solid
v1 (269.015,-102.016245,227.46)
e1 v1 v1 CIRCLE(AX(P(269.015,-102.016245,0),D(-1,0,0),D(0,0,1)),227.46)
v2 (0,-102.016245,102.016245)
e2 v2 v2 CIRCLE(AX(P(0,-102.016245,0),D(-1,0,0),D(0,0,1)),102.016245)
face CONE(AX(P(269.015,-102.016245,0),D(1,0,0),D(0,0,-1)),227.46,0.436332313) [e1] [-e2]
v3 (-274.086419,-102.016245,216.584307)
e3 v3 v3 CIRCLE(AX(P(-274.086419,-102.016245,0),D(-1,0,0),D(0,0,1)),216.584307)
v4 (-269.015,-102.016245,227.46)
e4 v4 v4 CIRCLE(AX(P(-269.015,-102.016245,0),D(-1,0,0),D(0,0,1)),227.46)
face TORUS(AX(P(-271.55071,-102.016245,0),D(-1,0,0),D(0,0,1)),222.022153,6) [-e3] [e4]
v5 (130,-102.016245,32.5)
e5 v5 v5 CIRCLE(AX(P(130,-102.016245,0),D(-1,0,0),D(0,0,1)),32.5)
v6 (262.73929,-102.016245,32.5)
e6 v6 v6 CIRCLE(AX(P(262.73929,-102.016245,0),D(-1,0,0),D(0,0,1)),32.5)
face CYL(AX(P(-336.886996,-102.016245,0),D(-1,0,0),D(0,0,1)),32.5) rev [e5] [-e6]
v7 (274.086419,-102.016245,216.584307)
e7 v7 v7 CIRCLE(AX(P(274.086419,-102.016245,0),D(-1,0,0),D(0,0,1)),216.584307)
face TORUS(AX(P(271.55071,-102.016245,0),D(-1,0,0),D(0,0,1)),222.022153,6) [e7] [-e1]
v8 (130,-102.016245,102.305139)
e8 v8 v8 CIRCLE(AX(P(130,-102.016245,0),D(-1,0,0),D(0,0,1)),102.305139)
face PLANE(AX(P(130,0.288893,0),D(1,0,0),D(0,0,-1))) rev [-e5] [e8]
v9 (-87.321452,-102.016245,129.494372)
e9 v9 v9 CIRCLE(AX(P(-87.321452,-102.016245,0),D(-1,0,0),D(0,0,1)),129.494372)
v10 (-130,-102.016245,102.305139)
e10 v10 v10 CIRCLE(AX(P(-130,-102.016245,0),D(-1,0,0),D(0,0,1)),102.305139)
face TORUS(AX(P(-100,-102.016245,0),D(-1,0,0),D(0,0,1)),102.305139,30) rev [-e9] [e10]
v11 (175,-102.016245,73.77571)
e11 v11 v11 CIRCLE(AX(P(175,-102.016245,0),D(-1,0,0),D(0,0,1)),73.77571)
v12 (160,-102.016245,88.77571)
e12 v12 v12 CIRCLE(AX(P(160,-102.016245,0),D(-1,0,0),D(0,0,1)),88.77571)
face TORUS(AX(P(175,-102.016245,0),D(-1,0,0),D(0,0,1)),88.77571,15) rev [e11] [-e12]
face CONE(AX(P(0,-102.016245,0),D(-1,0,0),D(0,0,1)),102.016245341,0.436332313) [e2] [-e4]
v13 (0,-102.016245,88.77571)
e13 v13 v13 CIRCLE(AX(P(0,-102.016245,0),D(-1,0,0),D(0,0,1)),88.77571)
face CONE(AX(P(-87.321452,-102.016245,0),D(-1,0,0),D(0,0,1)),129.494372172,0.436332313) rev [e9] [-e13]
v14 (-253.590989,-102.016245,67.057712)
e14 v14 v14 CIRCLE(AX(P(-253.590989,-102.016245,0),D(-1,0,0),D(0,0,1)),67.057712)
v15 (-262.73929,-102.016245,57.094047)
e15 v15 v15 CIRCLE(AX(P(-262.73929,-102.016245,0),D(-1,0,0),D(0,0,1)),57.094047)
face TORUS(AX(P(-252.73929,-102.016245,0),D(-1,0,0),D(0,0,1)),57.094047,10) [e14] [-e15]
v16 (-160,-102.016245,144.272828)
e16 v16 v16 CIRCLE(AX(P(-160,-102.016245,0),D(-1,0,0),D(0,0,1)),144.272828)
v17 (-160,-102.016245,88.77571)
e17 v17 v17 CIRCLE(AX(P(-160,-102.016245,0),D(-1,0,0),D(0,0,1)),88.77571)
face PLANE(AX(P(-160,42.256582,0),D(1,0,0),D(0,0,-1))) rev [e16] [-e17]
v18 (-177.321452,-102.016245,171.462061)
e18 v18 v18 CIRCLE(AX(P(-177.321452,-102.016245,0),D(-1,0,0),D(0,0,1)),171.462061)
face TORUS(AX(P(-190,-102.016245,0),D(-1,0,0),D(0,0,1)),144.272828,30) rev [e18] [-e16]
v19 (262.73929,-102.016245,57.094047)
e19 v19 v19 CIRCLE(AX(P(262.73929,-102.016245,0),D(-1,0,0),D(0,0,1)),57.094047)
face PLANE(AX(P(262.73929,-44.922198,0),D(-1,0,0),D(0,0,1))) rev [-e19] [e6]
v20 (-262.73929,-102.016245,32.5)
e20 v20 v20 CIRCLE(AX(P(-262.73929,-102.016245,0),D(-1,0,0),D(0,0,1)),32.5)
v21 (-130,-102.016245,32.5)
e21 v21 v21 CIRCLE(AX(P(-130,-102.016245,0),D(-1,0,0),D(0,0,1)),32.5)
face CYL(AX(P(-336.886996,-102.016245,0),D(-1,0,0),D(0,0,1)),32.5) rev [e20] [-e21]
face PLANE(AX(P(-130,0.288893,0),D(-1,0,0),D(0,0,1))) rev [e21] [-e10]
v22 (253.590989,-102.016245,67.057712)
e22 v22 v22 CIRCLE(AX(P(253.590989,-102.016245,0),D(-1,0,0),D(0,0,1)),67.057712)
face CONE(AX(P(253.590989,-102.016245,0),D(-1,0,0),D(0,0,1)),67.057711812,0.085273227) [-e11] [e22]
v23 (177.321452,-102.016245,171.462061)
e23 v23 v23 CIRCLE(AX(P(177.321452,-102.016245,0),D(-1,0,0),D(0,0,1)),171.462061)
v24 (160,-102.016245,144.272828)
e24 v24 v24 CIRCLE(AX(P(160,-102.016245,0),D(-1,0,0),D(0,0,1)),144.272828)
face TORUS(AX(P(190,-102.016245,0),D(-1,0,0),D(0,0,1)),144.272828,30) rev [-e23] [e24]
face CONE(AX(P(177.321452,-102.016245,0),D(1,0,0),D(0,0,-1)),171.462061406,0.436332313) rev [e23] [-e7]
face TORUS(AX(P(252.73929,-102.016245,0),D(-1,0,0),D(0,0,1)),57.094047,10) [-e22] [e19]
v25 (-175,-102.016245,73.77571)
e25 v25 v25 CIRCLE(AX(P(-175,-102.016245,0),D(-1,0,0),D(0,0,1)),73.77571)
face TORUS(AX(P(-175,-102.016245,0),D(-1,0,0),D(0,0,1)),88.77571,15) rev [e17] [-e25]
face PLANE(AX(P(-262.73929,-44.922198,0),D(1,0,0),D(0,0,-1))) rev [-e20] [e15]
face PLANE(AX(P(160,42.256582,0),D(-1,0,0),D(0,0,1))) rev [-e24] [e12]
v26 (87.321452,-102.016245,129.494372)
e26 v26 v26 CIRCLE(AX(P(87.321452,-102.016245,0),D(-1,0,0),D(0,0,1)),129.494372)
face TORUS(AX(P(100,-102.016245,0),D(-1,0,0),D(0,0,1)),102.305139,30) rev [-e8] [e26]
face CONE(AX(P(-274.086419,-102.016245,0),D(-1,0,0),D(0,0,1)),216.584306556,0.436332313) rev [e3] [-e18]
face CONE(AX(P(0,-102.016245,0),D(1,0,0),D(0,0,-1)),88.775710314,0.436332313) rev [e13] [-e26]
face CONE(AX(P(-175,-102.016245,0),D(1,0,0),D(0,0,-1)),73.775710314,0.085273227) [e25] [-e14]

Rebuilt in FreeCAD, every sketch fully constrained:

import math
import FreeCAD as App
import Part
import Sketcher
Q = App.Units.Quantity

doc = App.newDocument("Part")
body = doc.addObject("PartDesign::Body", "Body")

sketch1 = body.newObject("Sketcher::SketchObject", "Sketch")
sketch1.AttachmentSupport = (doc.getObject("XY_Plane"), [""])
sketch1.MapMode = "FlatFace"
sketch1.addGeometry(Part.LineSegment(App.Vector(269, 125, 0), App.Vector(0, 0, 0)), False)
sketch1.addGeometry(Part.LineSegment(App.Vector(0, 0, 0), App.Vector(-269, 125, 0)), False)
sketch1.addGeometry(Part.ArcOfCircle(Part.Circle(App.Vector(-272, 120, 0), App.Vector(0, 0, 1), 6), math.radians(65), math.radians(245)), False)
sketch1.addGeometry(Part.LineSegment(App.Vector(-274, 115, 0), App.Vector(-177, 69, 0)), False)
sketch1.addGeometry(Part.ArcOfCircle(Part.Circle(App.Vector(-190, 42, 0), App.Vector(0, 0, 1), 30), math.radians(0), math.radians(65)), False)
sketch1.addGeometry(Part.LineSegment(App.Vector(-160, 42, 0), App.Vector(-160, -13, 0)), False)
sketch1.addGeometry(Part.ArcOfCircle(Part.Circle(App.Vector(-175, -13, 0), App.Vector(0, 0, 1), 15), math.radians(-90), math.radians(0)), False)
sketch1.addGeometry(Part.LineSegment(App.Vector(-175, -28, 0), App.Vector(-254, -35, 0)), False)
sketch1.addGeometry(Part.ArcOfCircle(Part.Circle(App.Vector(-253, -45, 0), App.Vector(0, 0, 1), 10), math.radians(95), math.radians(180)), False)
sketch1.addGeometry(Part.LineSegment(App.Vector(-263, -45, 0), App.Vector(-263, -70, 0)), False)
sketch1.addGeometry(Part.LineSegment(App.Vector(-263, -70, 0), App.Vector(-130, -70, 0)), False)
sketch1.addGeometry(Part.LineSegment(App.Vector(-130, -70, 0), App.Vector(-130, 0, 0)), False)
sketch1.addGeometry(Part.ArcOfCircle(Part.Circle(App.Vector(-100, 0, 0), App.Vector(0, 0, 1), 30), math.radians(65), math.radians(180)), False)
sketch1.addGeometry(Part.LineSegment(App.Vector(-87, 27, 0), App.Vector(0, -13, 0)), False)
sketch1.addGeometry(Part.LineSegment(App.Vector(0, -13, 0), App.Vector(87, 27, 0)), False)
sketch1.addGeometry(Part.ArcOfCircle(Part.Circle(App.Vector(100, 0, 0), App.Vector(0, 0, 1), 30), math.radians(0), math.radians(115)), False)
sketch1.addGeometry(Part.LineSegment(App.Vector(130, 0, 0), App.Vector(130, -70, 0)), False)
sketch1.addGeometry(Part.LineSegment(App.Vector(130, -70, 0), App.Vector(263, -70, 0)), False)
sketch1.addGeometry(Part.LineSegment(App.Vector(263, -70, 0), App.Vector(263, -45, 0)), False)
sketch1.addGeometry(Part.ArcOfCircle(Part.Circle(App.Vector(253, -45, 0), App.Vector(0, 0, 1), 10), math.radians(0), math.radians(85)), False)
sketch1.addGeometry(Part.LineSegment(App.Vector(254, -35, 0), App.Vector(175, -28, 0)), False)
sketch1.addGeometry(Part.ArcOfCircle(Part.Circle(App.Vector(175, -13, 0), App.Vector(0, 0, 1), 15), math.radians(-180), math.radians(-90)), False)
sketch1.addGeometry(Part.LineSegment(App.Vector(160, -13, 0), App.Vector(160, 42, 0)), False)
sketch1.addGeometry(Part.ArcOfCircle(Part.Circle(App.Vector(190, 42, 0), App.Vector(0, 0, 1), 30), math.radians(115), math.radians(180)), False)
sketch1.addGeometry(Part.LineSegment(App.Vector(177, 69, 0), App.Vector(274, 115, 0)), False)
sketch1.addGeometry(Part.ArcOfCircle(Part.Circle(App.Vector(272, 120, 0), App.Vector(0, 0, 1), 6), math.radians(-65), math.radians(115)), False)
sketch1.addGeometry(Part.LineSegment(App.Vector(-274, -102, 0), App.Vector(274, -102, 0)), True)
sketch1.addConstraint(Sketcher.Constraint("Coincident", 0, 2, 1, 1))
sketch1.addConstraint(Sketcher.Constraint("Tangent", 1, 2, 2, 1))
sketch1.addConstraint(Sketcher.Constraint("Tangent", 2, 2, 3, 1))
sketch1.addConstraint(Sketcher.Constraint("Tangent", 3, 2, 4, 2))
sketch1.addConstraint(Sketcher.Constraint("Tangent", 4, 1, 5, 1))
sketch1.addConstraint(Sketcher.Constraint("Tangent", 5, 2, 6, 2))
sketch1.addConstraint(Sketcher.Constraint("Coincident", 6, 1, 7, 1))
sketch1.addConstraint(Sketcher.Constraint("Tangent", 7, 2, 8, 1))
sketch1.addConstraint(Sketcher.Constraint("Tangent", 8, 2, 9, 1))
sketch1.addConstraint(Sketcher.Constraint("Coincident", 9, 2, 10, 1))
sketch1.addConstraint(Sketcher.Constraint("Coincident", 10, 2, 11, 1))
sketch1.addConstraint(Sketcher.Constraint("Tangent", 11, 2, 12, 2))
sketch1.addConstraint(Sketcher.Constraint("Tangent", 12, 1, 13, 1))
sketch1.addConstraint(Sketcher.Constraint("Coincident", 13, 2, 14, 1))
sketch1.addConstraint(Sketcher.Constraint("Tangent", 14, 2, 15, 2))
sketch1.addConstraint(Sketcher.Constraint("Tangent", 15, 1, 16, 1))
sketch1.addConstraint(Sketcher.Constraint("Coincident", 16, 2, 17, 1))
sketch1.addConstraint(Sketcher.Constraint("Coincident", 17, 2, 18, 1))
sketch1.addConstraint(Sketcher.Constraint("Tangent", 18, 2, 19, 1))
sketch1.addConstraint(Sketcher.Constraint("Tangent", 19, 2, 20, 1))
sketch1.addConstraint(Sketcher.Constraint("Coincident", 20, 2, 21, 2))
sketch1.addConstraint(Sketcher.Constraint("Tangent", 21, 1, 22, 1))
sketch1.addConstraint(Sketcher.Constraint("Tangent", 22, 2, 23, 2))
sketch1.addConstraint(Sketcher.Constraint("Tangent", 23, 1, 24, 1))
sketch1.addConstraint(Sketcher.Constraint("Tangent", 24, 2, 25, 1))
sketch1.addConstraint(Sketcher.Constraint("Tangent", 25, 2, 0, 1))
sketch1.addConstraint(Sketcher.Constraint("Vertical", 5))
sketch1.addConstraint(Sketcher.Constraint("Vertical", 9))
sketch1.addConstraint(Sketcher.Constraint("Horizontal", 10))
sketch1.addConstraint(Sketcher.Constraint("Vertical", 11))
sketch1.addConstraint(Sketcher.Constraint("Vertical", 16))
sketch1.addConstraint(Sketcher.Constraint("Horizontal", 17))
sketch1.addConstraint(Sketcher.Constraint("Vertical", 18))
sketch1.addConstraint(Sketcher.Constraint("Vertical", 22))
sketch1.addConstraint(Sketcher.Constraint("Horizontal", 26))
sketch1.addConstraint(Sketcher.Constraint("Coincident", 0, 2, -1, 1))
sketch1.addConstraint(Sketcher.Constraint("Equal", 4, 12))
sketch1.addConstraint(Sketcher.Constraint("Equal", 12, 15))
sketch1.addConstraint(Sketcher.Constraint("Equal", 8, 19))
sketch1.addConstraint(Sketcher.Constraint("Equal", 6, 21))
sketch1.addConstraint(Sketcher.Constraint("Equal", 15, 23))
sketch1.addConstraint(Sketcher.Constraint("Equal", 2, 25))
sketch1.addConstraint(Sketcher.Constraint("Symmetric", 12, 3, 15, 3, -2))
sketch1.addConstraint(Sketcher.Constraint("Symmetric", 8, 3, 19, 3, -2))
sketch1.addConstraint(Sketcher.Constraint("Symmetric", 6, 3, 21, 3, -2))
sketch1.addConstraint(Sketcher.Constraint("Symmetric", 2, 3, 25, 3, -2))
sketch1.addConstraint(Sketcher.Constraint("PointOnObject", 13, 2, -2))
sketch1.addConstraint(Sketcher.Constraint("Parallel", 1, 3))
sketch1.addConstraint(Sketcher.Constraint("Parallel", 3, 13))
sketch1.addConstraint(Sketcher.Constraint("Parallel", 14, 24))
sketch1.addConstraint(Sketcher.Constraint("Horizontal", 5, 2, 13, 2))
sketch1.addConstraint(Sketcher.Constraint("Horizontal", 10, 2, 16, 2))
sketch1.addConstraint(Sketcher.Constraint("Vertical", 21, 3, 20, 2))
sketch1.addConstraint(Sketcher.Constraint("Vertical", 2, 2, 26, 1))
sketch1.addConstraint(Sketcher.Constraint("Vertical", 24, 2, 26, 2))
sketch1.addConstraint(Sketcher.Constraint("Equal", 7, 20))
sketch1.addConstraint(Sketcher.Constraint("Radius", 2, 6.0))
sketch1.addConstraint(Sketcher.Constraint("Radius", 4, 30.0))
sketch1.addConstraint(Sketcher.Constraint("Radius", 6, 15.0))
sketch1.addConstraint(Sketcher.Constraint("Radius", 8, 10.0))
sketch1.addConstraint(Sketcher.Constraint("Angle", 0, Q("-155 deg")))
sketch1.addConstraint(Sketcher.Constraint("DistanceX", 4, 3, -1, 1, 190.0))
sketch1.addConstraint(Sketcher.Constraint("DistanceX", 12, 3, -1, 1, 100.0))
sketch1.addConstraint(Sketcher.Constraint("DistanceY", 26, 1, 9, 2, 32.5))
sketch1.addConstraint(Sketcher.Constraint("DistanceX", 1, 2, -1, 1, 269.015))
sketch1.addConstraint(Sketcher.Constraint("DistanceY", 7, 2, 6, 1, 6.717999))
sketch1.addConstraint(Sketcher.Constraint("DistanceX", 10, 1, 10, 2, 132.73929))
sketch1.addConstraint(Sketcher.Constraint("DistanceY", 11, 1, 11, 2, 69.805139))
sketch1.addConstraint(Sketcher.Constraint("DistanceY", 5, 2, 5, 1, 55.497117))
revolution = body.newObject("PartDesign::Revolution", "Revolution")
revolution.Profile = sketch1
revolution.ReferenceAxis = (sketch1, ["Axis0"])
revolution.Angle = 360

doc.recompute()
